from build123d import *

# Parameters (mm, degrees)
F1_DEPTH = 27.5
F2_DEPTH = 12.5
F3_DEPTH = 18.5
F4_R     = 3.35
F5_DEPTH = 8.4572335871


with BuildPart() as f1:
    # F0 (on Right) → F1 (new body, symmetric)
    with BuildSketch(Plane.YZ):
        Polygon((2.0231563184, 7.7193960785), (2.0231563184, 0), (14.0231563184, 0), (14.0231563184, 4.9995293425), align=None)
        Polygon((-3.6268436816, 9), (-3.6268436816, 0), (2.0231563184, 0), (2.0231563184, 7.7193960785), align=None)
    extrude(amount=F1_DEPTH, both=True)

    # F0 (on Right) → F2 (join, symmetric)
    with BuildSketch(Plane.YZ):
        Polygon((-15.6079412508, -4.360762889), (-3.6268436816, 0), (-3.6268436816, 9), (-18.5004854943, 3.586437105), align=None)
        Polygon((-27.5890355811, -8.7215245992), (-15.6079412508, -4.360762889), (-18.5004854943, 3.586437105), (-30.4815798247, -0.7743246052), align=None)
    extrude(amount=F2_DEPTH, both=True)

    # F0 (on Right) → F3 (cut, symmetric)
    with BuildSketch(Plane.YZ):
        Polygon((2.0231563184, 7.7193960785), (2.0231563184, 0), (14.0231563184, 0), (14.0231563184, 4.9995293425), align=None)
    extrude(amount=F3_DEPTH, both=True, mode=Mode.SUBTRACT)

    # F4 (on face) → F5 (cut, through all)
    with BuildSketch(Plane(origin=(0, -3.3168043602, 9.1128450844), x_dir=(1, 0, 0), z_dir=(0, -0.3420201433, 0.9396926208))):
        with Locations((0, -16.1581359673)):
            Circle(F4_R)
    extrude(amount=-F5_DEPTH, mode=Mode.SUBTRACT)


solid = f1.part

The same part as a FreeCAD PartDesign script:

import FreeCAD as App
import Part
import Sketcher

V = App.Vector
Q = App.Units.Quantity

doc = App.newDocument("Part")
params = doc.addObject("Spreadsheet::Sheet", "Params")
for row, (alias, value) in enumerate([
    ("sketch1_height", "9 mm"),
    ("sketch1_width", "17.65 mm"),
    ("pad1_length", "55 mm"),
    ("sketch2_height", "9 mm"),
    ("pad2_length", "25 mm"),
    ("sketch3_width", "12 mm"),
    ("pocket1_length", "37 mm"),
    ("sketch4_diameter", "6.7 mm"),
], start=1):
    params.set(f"A{row}", alias)
    params.set(f"B{row}", "=" + value)
    params.setAlias(f"B{row}", alias)

body = doc.addObject("PartDesign::Body", "Body")

sketch1 = body.newObject("Sketcher::SketchObject", "Sketch")
sketch1.AttachmentSupport = (doc.getObject("YZ_Plane"), [""])
sketch1.MapMode = "FlatFace"
sketch1.addGeometry(Part.LineSegment(V(14, 0, 0), V(14, 5, 0)), False)
sketch1.addGeometry(Part.LineSegment(V(14, 5, 0), V(2, 7.7, 0)), False)
sketch1.addGeometry(Part.LineSegment(V(2, 7.7, 0), V(-3.6, 9, 0)), False)
sketch1.addGeometry(Part.LineSegment(V(-3.6, 9, 0), V(-3.6, 0, 0)), False)
sketch1.addGeometry(Part.LineSegment(V(-3.6, 0, 0), V(14, 0, 0)), False)
sketch1.addConstraint(Sketcher.Constraint("Coincident", 0, 2, 1, 1))
sketch1.addConstraint(Sketcher.Constraint("Coincident", 1, 2, 2, 1))
sketch1.addConstraint(Sketcher.Constraint("Coincident", 2, 2, 3, 1))
sketch1.addConstraint(Sketcher.Constraint("Coincident", 3, 2, 4, 1))
sketch1.addConstraint(Sketcher.Constraint("Coincident", 4, 2, 0, 1))
sketch1.addConstraint(Sketcher.Constraint("Vertical", 0))
sketch1.addConstraint(Sketcher.Constraint("Vertical", 3))
sketch1.addConstraint(Sketcher.Constraint("Horizontal", 4))
sketch1.addConstraint(Sketcher.Constraint("PointOnObject", 3, 2, -1))
sketch1.addConstraint(Sketcher.Constraint("Parallel", 1, 2))
sketch1.addConstraint(Sketcher.Constraint("DistanceY", 3, 2, 3, 1, Q("9 mm")))
sketch1.addConstraint(Sketcher.Constraint("DistanceX", 1, 2, 0, 2, Q("12 mm")))
sketch1.addConstraint(Sketcher.Constraint("DistanceX", 4, 1, 4, 2, Q("17.65 mm")))
sketch1.addConstraint(Sketcher.Constraint("DistanceY", 0, 1, 0, 2, Q("4.999529 mm")))
sketch1.addConstraint(Sketcher.Constraint("DistanceX", -1, 1, 0, 2, Q("14.023156 mm")))
sketch1.setExpression("Constraints[10]", "Params.sketch1_height")
sketch1.setExpression("Constraints[12]", "Params.sketch1_width")
pad1 = body.newObject("PartDesign::Pad", "Pad")
pad1.Profile = sketch1
pad1.setExpression("Length", "Params.pad1_length")
pad1.Midplane = True

sketch2 = body.newObject("Sketcher::SketchObject", "Sketch001")
sketch2.AttachmentSupport = (doc.getObject("YZ_Plane"), [""])
sketch2.MapMode = "FlatFace"
sketch2.addGeometry(Part.LineSegment(V(-16, -4, 0), V(-4, 0, 0)), False)
sketch2.addGeometry(Part.LineSegment(V(-4, 0, 0), V(-4, 9, 0)), False)
sketch2.addGeometry(Part.LineSegment(V(-4, 9, 0), V(-19, 4, 0)), False)
sketch2.addGeometry(Part.LineSegment(V(-19, 4, 0), V(-30, -1, 0)), False)
sketch2.addGeometry(Part.LineSegment(V(-30, -1, 0), V(-28, -9, 0)), False)
sketch2.addGeometry(Part.LineSegment(V(-28, -9, 0), V(-16, -4, 0)), False)
sketch2.addConstraint(Sketcher.Constraint("Coincident", 0, 2, 1, 1))
sketch2.addConstraint(Sketcher.Constraint("Coincident", 1, 2, 2, 1))
sketch2.addConstraint(Sketcher.Constraint("Coincident", 2, 2, 3, 1))
sketch2.addConstraint(Sketcher.Constraint("Coincident", 3, 2, 4, 1))
sketch2.addConstraint(Sketcher.Constraint("Coincident", 4, 2, 5, 1))
sketch2.addConstraint(Sketcher.Constraint("Coincident", 5, 2, 0, 1))
sketch2.addConstraint(Sketcher.Constraint("Vertical", 1))
sketch2.addConstraint(Sketcher.Constraint("PointOnObject", 0, 2, -1))
sketch2.addConstraint(Sketcher.Constraint("Parallel", 0, 2))
sketch2.addConstraint(Sketcher.Constraint("Parallel", 2, 3))
sketch2.addConstraint(Sketcher.Constraint("Perpendicular", 3, 4))
sketch2.addConstraint(Sketcher.Constraint("Perpendicular", 4, 5))
sketch2.addConstraint(Sketcher.Constraint("Equal", 3, 5))
sketch2.addConstraint(Sketcher.Constraint("DistanceY", 1, 1, 1, 2, Q("9 mm")))
sketch2.addConstraint(Sketcher.Constraint("Angle", 0, Q("20 deg")))
sketch2.addConstraint(Sketcher.Constraint("Distance", 2, Q("15.828199 mm")))
sketch2.addConstraint(Sketcher.Constraint("DistanceX", 3, 2, -1, 1, Q("30.48158 mm")))
sketch2.addConstraint(Sketcher.Constraint("DistanceX", 5, 2, -1, 1, Q("15.607941 mm")))
sketch2.setExpression("Constraints[13]", "Params.sketch2_height")
pad2 = body.newObject("PartDesign::Pad", "Pad001")
pad2.Profile = sketch2
pad2.setExpression("Length", "Params.pad2_length")
pad2.Midplane = True

sketch3 = body.newObject("Sketcher::SketchObject", "Sketch002")
sketch3.AttachmentSupport = (doc.getObject("YZ_Plane"), [""])
sketch3.MapMode = "FlatFace"
sketch3.addGeometry(Part.LineSegment(V(2, 7.7, 0), V(2, 0, 0)), False)
sketch3.addGeometry(Part.LineSegment(V(2, 0, 0), V(14, 0, 0)), False)
sketch3.addGeometry(Part.LineSegment(V(14, 0, 0), V(14, 5, 0)), False)
sketch3.addGeometry(Part.LineSegment(V(14, 5, 0), V(2, 7.7, 0)), False)
sketch3.addConstraint(Sketcher.Constraint("Coincident", 0, 2, 1, 1))
sketch3.addConstraint(Sketcher.Constraint("Coincident", 1, 2, 2, 1))
sketch3.addConstraint(Sketcher.Constraint("Coincident", 2, 2, 3, 1))
sketch3.addConstraint(Sketcher.Constraint("Coincident", 3, 2, 0, 1))
sketch3.addConstraint(Sketcher.Constraint("Vertical", 0))
sketch3.addConstraint(Sketcher.Constraint("Horizontal", 1))
sketch3.addConstraint(Sketcher.Constraint("Vertical", 2))
sketch3.addConstraint(Sketcher.Constraint("PointOnObject", 0, 2, -1))
sketch3.addConstraint(Sketcher.Constraint("DistanceX", 1, 1, 1, 2, Q("12 mm")))
sketch3.addConstraint(Sketcher.Constraint("DistanceY", 2, 1, 2, 2, Q("4.999529 mm")))
sketch3.addConstraint(Sketcher.Constraint("DistanceY", 0, 2, 0, 1, Q("7.719396 mm")))
sketch3.addConstraint(Sketcher.Constraint("DistanceX", -1, 1, 0, 2, Q("2.023156 mm")))
sketch3.setExpression("Constraints[8]", "Params.sketch3_width")
pocket1 = body.newObject("PartDesign::Pocket", "Pocket")
pocket1.Profile = sketch3
pocket1.setExpression("Length", "Params.pocket1_length")
pocket1.Midplane = True

sketch4 = body.newObject("Sketcher::SketchObject", "Sketch003")
sketch4.Placement = App.Placement(V(0, -3.316804, 9.112845), App.Rotation(V(1, 0, 0), V(0, 0.939692621, 0.342020143), V(0, -0.342020143, 0.939692621), "ZXY"))
sketch4.addGeometry(Part.Circle(V(0, -16.2, 0), V(0, 0, 1), 3.4), False)
sketch4.addConstraint(Sketcher.Constraint("PointOnObject", 0, 3, -2))
sketch4.addConstraint(Sketcher.Constraint("Diameter", 0, Q("6.7 mm")))
sketch4.addConstraint(Sketcher.Constraint("DistanceY", 0, 3, -1, 1, Q("16.158136 mm")))
sketch4.setExpression("Constraints[1]", "Params.sketch4_diameter")
pocket2 = body.newObject("PartDesign::Pocket", "Pocket001")
pocket2.Profile = sketch4
pocket2.Type = "ThroughAll"

doc.recompute()
